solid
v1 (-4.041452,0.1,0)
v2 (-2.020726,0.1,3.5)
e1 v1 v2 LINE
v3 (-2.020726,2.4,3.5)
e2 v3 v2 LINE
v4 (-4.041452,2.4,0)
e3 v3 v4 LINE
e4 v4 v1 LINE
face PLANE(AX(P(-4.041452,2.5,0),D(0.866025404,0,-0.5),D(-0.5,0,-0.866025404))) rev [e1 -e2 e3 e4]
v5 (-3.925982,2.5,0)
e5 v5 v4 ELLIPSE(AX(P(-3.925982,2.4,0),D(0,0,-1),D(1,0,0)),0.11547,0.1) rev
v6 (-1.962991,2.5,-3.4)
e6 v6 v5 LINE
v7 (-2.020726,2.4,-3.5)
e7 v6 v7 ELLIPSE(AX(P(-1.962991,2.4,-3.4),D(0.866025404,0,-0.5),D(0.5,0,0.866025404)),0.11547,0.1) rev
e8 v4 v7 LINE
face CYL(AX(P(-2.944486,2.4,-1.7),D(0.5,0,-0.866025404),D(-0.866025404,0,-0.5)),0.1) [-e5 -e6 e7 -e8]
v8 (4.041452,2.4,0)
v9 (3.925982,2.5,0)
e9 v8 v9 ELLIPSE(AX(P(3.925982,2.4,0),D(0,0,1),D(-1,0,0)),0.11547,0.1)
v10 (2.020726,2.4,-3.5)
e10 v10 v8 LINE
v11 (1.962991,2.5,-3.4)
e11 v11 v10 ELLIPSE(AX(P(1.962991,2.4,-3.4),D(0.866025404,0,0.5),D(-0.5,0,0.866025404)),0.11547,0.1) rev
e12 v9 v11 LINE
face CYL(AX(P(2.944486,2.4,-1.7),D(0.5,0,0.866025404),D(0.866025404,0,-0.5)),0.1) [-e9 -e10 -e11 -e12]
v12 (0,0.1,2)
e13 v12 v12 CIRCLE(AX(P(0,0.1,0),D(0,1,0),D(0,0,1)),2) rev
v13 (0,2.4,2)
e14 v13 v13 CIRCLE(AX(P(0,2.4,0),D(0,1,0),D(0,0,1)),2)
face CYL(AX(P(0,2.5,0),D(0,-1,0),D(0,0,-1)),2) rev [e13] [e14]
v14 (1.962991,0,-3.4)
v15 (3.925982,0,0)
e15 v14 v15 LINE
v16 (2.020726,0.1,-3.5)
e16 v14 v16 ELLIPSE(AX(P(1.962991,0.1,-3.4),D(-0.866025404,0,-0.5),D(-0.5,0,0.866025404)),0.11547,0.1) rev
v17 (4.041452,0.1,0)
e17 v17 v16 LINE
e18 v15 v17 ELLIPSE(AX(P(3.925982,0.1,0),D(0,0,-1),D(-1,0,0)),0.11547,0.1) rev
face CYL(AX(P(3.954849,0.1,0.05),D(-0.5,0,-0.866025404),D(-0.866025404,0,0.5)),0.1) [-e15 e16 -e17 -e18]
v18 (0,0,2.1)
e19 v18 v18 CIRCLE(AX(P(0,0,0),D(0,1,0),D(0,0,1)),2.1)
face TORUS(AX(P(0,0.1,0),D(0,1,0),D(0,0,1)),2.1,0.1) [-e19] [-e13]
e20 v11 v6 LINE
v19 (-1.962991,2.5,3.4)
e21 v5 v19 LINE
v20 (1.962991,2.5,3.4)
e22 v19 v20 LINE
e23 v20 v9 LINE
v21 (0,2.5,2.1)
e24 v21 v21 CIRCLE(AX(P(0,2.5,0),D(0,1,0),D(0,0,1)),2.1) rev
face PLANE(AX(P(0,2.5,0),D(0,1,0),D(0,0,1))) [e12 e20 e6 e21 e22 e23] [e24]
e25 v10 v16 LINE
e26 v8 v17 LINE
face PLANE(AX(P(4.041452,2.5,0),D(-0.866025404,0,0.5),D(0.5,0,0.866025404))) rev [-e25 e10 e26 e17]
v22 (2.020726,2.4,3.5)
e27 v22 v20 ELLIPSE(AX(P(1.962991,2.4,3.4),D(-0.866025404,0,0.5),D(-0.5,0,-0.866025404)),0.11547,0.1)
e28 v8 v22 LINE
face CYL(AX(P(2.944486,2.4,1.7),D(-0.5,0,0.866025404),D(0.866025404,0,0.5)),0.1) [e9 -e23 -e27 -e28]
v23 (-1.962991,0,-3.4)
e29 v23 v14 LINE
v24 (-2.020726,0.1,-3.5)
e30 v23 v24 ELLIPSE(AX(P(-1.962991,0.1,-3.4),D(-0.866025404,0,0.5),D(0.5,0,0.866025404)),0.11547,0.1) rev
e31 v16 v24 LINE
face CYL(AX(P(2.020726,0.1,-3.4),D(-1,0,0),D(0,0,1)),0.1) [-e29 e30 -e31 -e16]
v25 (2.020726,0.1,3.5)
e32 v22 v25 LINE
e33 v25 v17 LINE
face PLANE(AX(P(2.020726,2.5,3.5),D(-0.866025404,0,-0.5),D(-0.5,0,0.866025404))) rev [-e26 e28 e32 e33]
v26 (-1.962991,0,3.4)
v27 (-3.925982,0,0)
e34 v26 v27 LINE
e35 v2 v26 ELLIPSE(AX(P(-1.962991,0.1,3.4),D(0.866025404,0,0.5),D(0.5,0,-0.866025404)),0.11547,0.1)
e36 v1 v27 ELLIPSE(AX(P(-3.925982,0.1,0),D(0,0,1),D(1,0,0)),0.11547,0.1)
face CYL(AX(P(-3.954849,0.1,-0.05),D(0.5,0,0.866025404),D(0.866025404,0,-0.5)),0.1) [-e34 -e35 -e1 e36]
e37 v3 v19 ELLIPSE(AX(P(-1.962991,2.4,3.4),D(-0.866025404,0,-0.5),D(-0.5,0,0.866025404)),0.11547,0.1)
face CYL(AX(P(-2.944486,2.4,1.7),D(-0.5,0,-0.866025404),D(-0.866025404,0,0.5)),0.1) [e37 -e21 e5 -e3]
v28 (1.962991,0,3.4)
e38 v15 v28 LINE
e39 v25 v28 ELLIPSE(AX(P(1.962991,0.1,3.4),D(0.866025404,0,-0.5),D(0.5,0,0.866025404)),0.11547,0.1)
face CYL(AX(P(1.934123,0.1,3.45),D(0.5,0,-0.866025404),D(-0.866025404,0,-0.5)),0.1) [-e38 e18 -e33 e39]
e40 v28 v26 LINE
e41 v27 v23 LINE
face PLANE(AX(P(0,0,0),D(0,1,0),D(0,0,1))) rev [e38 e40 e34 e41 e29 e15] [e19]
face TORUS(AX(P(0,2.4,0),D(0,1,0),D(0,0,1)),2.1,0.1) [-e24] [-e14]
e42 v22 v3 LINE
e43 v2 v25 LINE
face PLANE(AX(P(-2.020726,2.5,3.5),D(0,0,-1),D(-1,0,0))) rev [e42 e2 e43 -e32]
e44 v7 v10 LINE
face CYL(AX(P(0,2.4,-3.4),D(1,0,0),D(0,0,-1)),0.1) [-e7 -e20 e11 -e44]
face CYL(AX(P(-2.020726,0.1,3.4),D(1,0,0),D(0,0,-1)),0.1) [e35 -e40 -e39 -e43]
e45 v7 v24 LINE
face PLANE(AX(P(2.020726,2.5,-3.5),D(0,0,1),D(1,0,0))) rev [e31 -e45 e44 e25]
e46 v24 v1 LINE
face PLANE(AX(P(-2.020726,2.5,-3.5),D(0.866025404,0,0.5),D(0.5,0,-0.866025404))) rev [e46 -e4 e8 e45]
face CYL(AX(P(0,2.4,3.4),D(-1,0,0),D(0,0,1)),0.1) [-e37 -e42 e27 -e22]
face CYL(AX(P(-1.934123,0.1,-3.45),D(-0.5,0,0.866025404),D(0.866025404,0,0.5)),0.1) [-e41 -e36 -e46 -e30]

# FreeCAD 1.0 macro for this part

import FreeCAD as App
import Part
import Sketcher
from FreeCAD import Vector
Q = App.Units.Quantity


def edges_at(feature, points):
    """Names of the edges that pass closest to the given points."""
    edges = feature.Shape.Edges
    near = lambda p: min(range(len(edges)), key=lambda i: edges[i].distToShape(Part.Vertex(*p))[0])
    return sorted({f"Edge{near(p) + 1}" for p in points})


def add_polygon(sketch, points):
    """Adds a closed chain of lines whose ends are joined by coincident constraints."""
    first, n = sketch.GeometryCount, len(points)
    for a, b in zip(points, points[1:] + points[:1]):
        sketch.addGeometry(Part.LineSegment(App.Vector(*a, 0), App.Vector(*b, 0)), False)
    for i in range(n):
        sketch.addConstraint(Sketcher.Constraint("Coincident", first + i, 2, first + (i + 1) % n, 1))

doc = App.newDocument("Part")
body = doc.addObject("PartDesign::Body", "Body")

# Sketch on XZ plane
sketch1 = body.newObject("Sketcher::SketchObject", "Sketch")
sketch1.AttachmentSupport = (doc.getObject("XZ_Plane"), [""])
sketch1.MapMode = "FlatFace"
add_polygon(sketch1, [(2.020726, 3.5), (4.041452, 0), (2.020726, -3.5), (-2.020726, -3.5), (-4.041452, 0), (-2.020726, 3.5)])  # lines 0-5
sketch1.addGeometry(Part.Circle(Vector(0, 0, 0), Vector(0, 0, 1), 2), False)  # 6
sketch1.addConstraint([
    Sketcher.Constraint("Horizontal", 2),
    Sketcher.Constraint("Horizontal", 5),
    Sketcher.Constraint("Coincident", 6, 3, -1, 1),
    Sketcher.Constraint("Symmetric", 0, 2, 3, 2, -1, 1),
    Sketcher.Constraint("Symmetric", 1, 2, 4, 2, -1, 1),
    Sketcher.Constraint("PointOnObject", 0, 2, -1),
    Sketcher.Constraint("Parallel", 0, 3),
    Sketcher.Constraint("Vertical", 2, 2, 4, 2),
    Sketcher.Constraint("Diameter", 6, 4.0),
    Sketcher.Constraint("Angle", 0, Q("-60 deg")),
    Sketcher.Constraint("DistanceY", 2, 2, 4, 2, 7.0),
    Sketcher.Constraint("DistanceX", 2, 2, 2, 1, 4.041452),
])
pad1 = body.newObject("PartDesign::Pad", "Pad")
pad1.Profile = sketch1
pad1.Length = 2.5
pad1.Reversed = True
doc.recompute()

fillet = body.newObject("PartDesign::Fillet", "Fillet")
fillet.Base = (pad1, edges_at(pad1, [
    (3.031, 2.5, -1.75),
    (0, 2.5, -3.5),
    (-3.031, 2.5, -1.75),
    (0, 0, -2),
    (0, 2.5, -2),
    (-3.031, 2.5, 1.75),
    (0, 2.5, 3.5),
    (-3.031, 0, 1.75),
    (-3.031, 0, -1.75),
    (0, 0, -3.5),
    (3.031, 2.5, 1.75),
    (3.031, 0, -1.75),
    (3.031, 0, 1.75),
    (0, 0, 3.5),
]))
fillet.Radius = 0.1

doc.recompute()
